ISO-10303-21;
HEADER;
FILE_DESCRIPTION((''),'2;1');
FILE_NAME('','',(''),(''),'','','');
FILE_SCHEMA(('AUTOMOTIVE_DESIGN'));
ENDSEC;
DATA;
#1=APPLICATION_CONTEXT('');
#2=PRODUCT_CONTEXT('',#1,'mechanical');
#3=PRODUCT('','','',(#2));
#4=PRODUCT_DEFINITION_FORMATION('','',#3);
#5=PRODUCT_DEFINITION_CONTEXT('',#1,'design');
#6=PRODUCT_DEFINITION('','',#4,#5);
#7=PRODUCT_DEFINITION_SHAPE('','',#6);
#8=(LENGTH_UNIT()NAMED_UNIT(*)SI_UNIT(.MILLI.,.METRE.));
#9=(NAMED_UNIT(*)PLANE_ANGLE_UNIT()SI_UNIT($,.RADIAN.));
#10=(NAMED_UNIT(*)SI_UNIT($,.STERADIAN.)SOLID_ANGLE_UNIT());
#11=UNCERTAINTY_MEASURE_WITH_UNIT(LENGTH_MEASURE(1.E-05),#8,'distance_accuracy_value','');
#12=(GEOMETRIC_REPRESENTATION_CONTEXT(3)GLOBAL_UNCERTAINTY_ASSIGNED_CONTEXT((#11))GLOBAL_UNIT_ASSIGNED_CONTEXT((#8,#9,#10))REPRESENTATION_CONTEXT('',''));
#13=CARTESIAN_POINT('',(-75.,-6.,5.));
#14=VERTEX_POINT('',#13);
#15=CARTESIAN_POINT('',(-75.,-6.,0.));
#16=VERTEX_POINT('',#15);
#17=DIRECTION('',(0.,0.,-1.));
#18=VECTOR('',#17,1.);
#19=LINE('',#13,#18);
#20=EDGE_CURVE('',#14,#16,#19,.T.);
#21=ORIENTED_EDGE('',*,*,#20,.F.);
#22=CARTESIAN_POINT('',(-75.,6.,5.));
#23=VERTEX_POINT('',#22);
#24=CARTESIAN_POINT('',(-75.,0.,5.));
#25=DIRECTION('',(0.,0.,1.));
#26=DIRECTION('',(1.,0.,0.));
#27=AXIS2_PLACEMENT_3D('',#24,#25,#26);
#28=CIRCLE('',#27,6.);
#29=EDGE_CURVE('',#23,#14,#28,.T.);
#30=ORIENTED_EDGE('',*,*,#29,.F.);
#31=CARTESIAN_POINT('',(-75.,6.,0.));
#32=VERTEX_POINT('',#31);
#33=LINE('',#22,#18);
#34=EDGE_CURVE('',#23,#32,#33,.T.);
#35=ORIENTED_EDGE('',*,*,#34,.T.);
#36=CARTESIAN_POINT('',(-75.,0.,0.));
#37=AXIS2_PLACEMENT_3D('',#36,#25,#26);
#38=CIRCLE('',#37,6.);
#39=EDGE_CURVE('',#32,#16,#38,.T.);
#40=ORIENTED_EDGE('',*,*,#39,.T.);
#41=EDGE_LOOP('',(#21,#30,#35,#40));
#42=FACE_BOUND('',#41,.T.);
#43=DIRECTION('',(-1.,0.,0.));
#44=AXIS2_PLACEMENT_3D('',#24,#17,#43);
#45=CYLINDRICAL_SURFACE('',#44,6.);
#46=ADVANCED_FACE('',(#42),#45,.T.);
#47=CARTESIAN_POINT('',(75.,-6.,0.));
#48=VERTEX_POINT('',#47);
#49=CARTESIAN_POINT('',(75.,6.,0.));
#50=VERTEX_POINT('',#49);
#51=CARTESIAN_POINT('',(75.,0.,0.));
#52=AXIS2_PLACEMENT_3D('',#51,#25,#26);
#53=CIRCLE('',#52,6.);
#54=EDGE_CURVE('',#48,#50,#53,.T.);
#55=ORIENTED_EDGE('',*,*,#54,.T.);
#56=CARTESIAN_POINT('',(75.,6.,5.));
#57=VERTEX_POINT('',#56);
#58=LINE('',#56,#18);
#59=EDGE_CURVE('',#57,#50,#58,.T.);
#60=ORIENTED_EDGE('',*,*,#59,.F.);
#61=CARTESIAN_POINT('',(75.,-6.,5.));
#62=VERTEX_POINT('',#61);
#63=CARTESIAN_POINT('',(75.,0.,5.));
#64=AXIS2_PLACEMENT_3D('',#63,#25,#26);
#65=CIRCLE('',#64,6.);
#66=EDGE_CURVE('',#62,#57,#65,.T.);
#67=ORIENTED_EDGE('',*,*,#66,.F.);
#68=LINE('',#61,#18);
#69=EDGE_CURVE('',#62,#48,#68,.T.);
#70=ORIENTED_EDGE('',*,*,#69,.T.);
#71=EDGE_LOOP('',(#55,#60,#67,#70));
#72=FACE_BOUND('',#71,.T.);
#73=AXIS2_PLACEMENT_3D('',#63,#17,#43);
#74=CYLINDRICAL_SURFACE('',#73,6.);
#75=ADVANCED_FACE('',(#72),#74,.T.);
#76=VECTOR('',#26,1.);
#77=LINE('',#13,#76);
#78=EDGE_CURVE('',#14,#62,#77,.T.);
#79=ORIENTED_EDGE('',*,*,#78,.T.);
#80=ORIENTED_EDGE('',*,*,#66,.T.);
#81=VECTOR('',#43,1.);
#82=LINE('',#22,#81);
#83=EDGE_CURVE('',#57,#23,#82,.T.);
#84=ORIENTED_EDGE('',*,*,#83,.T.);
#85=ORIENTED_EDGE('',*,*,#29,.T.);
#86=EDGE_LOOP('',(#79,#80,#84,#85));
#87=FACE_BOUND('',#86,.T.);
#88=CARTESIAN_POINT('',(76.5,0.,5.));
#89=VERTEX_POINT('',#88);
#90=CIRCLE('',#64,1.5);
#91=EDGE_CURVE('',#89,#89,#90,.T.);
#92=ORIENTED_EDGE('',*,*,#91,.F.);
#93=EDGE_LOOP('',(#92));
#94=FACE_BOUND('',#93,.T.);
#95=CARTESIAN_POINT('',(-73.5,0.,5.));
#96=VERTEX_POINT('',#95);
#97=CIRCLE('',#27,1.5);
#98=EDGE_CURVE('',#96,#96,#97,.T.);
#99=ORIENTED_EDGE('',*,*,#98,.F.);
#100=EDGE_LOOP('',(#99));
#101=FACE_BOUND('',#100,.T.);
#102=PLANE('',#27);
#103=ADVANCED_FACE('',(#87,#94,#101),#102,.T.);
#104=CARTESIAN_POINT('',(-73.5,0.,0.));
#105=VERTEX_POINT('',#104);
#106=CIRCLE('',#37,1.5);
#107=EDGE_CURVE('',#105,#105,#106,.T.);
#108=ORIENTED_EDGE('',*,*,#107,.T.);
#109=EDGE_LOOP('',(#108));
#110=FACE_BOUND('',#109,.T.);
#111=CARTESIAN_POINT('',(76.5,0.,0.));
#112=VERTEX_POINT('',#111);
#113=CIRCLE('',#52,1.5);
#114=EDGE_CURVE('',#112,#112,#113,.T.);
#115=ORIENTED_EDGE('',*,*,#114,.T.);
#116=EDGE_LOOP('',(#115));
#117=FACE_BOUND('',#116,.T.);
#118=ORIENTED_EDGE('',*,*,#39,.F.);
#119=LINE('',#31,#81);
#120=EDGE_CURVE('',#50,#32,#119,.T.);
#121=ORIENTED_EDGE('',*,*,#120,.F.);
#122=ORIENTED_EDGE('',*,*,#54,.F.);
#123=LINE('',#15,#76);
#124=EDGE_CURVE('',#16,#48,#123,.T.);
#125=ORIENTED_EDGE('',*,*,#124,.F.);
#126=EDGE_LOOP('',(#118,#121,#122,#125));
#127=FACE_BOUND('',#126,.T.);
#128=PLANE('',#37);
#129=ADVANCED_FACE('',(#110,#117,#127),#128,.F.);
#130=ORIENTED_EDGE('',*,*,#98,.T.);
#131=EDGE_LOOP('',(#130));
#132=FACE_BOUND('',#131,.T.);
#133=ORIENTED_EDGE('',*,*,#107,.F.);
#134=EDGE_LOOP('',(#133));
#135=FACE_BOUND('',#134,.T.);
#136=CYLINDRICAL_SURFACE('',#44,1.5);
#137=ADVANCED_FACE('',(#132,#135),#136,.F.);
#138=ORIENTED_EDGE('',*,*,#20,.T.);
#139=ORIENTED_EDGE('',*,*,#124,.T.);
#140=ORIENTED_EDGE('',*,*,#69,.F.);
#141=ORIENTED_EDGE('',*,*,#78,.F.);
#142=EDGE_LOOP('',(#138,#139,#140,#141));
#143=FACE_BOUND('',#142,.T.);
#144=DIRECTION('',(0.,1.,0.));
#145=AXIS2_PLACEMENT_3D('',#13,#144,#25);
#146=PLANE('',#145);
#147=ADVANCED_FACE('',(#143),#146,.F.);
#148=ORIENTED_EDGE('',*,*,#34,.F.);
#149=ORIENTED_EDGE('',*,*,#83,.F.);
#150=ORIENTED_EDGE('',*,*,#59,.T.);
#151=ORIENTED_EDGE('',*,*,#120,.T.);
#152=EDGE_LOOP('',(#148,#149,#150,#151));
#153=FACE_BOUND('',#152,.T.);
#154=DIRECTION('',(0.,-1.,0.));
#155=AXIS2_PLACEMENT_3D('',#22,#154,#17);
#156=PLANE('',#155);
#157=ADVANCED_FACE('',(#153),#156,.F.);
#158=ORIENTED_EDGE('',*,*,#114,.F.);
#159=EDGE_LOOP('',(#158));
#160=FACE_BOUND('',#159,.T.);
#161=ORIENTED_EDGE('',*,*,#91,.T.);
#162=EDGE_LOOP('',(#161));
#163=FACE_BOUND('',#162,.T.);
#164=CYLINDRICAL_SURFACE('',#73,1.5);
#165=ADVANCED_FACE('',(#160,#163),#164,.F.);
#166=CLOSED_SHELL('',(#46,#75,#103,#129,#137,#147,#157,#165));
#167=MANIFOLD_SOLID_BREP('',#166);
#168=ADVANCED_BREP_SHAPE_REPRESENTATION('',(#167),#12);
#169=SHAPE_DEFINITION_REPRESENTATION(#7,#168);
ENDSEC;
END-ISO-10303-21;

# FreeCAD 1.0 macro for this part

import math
import FreeCAD as App
import Part
import Sketcher
from FreeCAD import Vector

doc = App.newDocument("Part")
params = doc.addObject("Spreadsheet::Sheet", "Params")
for row, (alias, value) in enumerate([
    ("sketch1_diameter", "3 mm"),
    ("sketch1_radius", "6 mm"),
    ("sketch1_width", "150 mm"),
    ("pad1_length", "5 mm"),
], start=1):
    params.set(f"A{row}", alias)
    params.set(f"B{row}", "=" + value)
    params.setAlias(f"B{row}", alias)

body = doc.addObject("PartDesign::Body", "Body")

sketch1 = body.newObject("Sketcher::SketchObject", "Sketch")
sketch1.AttachmentSupport = (doc.getObject("XY_Plane"), [""])
sketch1.MapMode = "FlatFace"
sketch1.addGeometry([
    Part.LineSegment(Vector(75, 6, 0), Vector(-75, 6, 0)),
    Part.ArcOfCircle(Part.Circle(Vector(-75, 0, 0), Vector(0, 0, 1), 6), math.radians(90), math.radians(270)),
    Part.LineSegment(Vector(-75, -6, 0), Vector(75, -6, 0)),
    Part.ArcOfCircle(Part.Circle(Vector(75, 0, 0), Vector(0, 0, 1), 6), math.radians(-90), math.radians(90)),
    Part.Circle(Vector(75, 0, 0), Vector(0, 0, 1), 1.5),
    Part.Circle(Vector(-75, 0, 0), Vector(0, 0, 1), 1.5),
], False)
sketch1.addConstraint([
    Sketcher.Constraint("Tangent", 0, 2, 1, 1),
    Sketcher.Constraint("Tangent", 1, 2, 2, 1),
    Sketcher.Constraint("Tangent", 2, 2, 3, 1),
    Sketcher.Constraint("Tangent", 3, 2, 0, 1),
    Sketcher.Constraint("Horizontal", 0),
    Sketcher.Constraint("Horizontal", 2),
    Sketcher.Constraint("Coincident", 4, 3, 3, 3),
    Sketcher.Constraint("Coincident", 5, 3, 1, 3),
    Sketcher.Constraint("Equal", 4, 5),
    Sketcher.Constraint("Symmetric", 1, 3, 3, 3, -1, 1),
    Sketcher.Constraint("Diameter", 4, 3.0),
    Sketcher.Constraint("Radius", 1, 6.0),
    Sketcher.Constraint("DistanceX", 0, 2, 0, 1, 150.0),
])
sketch1.setExpression("Constraints[10]", "Params.sketch1_diameter")
sketch1.setExpression("Constraints[11]", "Params.sketch1_radius")
sketch1.setExpression("Constraints[12]", "Params.sketch1_width")
pad1 = body.newObject("PartDesign::Pad", "Pad")
pad1.Profile = sketch1
pad1.setExpression("Length", "Params.pad1_length")

doc.recompute()
